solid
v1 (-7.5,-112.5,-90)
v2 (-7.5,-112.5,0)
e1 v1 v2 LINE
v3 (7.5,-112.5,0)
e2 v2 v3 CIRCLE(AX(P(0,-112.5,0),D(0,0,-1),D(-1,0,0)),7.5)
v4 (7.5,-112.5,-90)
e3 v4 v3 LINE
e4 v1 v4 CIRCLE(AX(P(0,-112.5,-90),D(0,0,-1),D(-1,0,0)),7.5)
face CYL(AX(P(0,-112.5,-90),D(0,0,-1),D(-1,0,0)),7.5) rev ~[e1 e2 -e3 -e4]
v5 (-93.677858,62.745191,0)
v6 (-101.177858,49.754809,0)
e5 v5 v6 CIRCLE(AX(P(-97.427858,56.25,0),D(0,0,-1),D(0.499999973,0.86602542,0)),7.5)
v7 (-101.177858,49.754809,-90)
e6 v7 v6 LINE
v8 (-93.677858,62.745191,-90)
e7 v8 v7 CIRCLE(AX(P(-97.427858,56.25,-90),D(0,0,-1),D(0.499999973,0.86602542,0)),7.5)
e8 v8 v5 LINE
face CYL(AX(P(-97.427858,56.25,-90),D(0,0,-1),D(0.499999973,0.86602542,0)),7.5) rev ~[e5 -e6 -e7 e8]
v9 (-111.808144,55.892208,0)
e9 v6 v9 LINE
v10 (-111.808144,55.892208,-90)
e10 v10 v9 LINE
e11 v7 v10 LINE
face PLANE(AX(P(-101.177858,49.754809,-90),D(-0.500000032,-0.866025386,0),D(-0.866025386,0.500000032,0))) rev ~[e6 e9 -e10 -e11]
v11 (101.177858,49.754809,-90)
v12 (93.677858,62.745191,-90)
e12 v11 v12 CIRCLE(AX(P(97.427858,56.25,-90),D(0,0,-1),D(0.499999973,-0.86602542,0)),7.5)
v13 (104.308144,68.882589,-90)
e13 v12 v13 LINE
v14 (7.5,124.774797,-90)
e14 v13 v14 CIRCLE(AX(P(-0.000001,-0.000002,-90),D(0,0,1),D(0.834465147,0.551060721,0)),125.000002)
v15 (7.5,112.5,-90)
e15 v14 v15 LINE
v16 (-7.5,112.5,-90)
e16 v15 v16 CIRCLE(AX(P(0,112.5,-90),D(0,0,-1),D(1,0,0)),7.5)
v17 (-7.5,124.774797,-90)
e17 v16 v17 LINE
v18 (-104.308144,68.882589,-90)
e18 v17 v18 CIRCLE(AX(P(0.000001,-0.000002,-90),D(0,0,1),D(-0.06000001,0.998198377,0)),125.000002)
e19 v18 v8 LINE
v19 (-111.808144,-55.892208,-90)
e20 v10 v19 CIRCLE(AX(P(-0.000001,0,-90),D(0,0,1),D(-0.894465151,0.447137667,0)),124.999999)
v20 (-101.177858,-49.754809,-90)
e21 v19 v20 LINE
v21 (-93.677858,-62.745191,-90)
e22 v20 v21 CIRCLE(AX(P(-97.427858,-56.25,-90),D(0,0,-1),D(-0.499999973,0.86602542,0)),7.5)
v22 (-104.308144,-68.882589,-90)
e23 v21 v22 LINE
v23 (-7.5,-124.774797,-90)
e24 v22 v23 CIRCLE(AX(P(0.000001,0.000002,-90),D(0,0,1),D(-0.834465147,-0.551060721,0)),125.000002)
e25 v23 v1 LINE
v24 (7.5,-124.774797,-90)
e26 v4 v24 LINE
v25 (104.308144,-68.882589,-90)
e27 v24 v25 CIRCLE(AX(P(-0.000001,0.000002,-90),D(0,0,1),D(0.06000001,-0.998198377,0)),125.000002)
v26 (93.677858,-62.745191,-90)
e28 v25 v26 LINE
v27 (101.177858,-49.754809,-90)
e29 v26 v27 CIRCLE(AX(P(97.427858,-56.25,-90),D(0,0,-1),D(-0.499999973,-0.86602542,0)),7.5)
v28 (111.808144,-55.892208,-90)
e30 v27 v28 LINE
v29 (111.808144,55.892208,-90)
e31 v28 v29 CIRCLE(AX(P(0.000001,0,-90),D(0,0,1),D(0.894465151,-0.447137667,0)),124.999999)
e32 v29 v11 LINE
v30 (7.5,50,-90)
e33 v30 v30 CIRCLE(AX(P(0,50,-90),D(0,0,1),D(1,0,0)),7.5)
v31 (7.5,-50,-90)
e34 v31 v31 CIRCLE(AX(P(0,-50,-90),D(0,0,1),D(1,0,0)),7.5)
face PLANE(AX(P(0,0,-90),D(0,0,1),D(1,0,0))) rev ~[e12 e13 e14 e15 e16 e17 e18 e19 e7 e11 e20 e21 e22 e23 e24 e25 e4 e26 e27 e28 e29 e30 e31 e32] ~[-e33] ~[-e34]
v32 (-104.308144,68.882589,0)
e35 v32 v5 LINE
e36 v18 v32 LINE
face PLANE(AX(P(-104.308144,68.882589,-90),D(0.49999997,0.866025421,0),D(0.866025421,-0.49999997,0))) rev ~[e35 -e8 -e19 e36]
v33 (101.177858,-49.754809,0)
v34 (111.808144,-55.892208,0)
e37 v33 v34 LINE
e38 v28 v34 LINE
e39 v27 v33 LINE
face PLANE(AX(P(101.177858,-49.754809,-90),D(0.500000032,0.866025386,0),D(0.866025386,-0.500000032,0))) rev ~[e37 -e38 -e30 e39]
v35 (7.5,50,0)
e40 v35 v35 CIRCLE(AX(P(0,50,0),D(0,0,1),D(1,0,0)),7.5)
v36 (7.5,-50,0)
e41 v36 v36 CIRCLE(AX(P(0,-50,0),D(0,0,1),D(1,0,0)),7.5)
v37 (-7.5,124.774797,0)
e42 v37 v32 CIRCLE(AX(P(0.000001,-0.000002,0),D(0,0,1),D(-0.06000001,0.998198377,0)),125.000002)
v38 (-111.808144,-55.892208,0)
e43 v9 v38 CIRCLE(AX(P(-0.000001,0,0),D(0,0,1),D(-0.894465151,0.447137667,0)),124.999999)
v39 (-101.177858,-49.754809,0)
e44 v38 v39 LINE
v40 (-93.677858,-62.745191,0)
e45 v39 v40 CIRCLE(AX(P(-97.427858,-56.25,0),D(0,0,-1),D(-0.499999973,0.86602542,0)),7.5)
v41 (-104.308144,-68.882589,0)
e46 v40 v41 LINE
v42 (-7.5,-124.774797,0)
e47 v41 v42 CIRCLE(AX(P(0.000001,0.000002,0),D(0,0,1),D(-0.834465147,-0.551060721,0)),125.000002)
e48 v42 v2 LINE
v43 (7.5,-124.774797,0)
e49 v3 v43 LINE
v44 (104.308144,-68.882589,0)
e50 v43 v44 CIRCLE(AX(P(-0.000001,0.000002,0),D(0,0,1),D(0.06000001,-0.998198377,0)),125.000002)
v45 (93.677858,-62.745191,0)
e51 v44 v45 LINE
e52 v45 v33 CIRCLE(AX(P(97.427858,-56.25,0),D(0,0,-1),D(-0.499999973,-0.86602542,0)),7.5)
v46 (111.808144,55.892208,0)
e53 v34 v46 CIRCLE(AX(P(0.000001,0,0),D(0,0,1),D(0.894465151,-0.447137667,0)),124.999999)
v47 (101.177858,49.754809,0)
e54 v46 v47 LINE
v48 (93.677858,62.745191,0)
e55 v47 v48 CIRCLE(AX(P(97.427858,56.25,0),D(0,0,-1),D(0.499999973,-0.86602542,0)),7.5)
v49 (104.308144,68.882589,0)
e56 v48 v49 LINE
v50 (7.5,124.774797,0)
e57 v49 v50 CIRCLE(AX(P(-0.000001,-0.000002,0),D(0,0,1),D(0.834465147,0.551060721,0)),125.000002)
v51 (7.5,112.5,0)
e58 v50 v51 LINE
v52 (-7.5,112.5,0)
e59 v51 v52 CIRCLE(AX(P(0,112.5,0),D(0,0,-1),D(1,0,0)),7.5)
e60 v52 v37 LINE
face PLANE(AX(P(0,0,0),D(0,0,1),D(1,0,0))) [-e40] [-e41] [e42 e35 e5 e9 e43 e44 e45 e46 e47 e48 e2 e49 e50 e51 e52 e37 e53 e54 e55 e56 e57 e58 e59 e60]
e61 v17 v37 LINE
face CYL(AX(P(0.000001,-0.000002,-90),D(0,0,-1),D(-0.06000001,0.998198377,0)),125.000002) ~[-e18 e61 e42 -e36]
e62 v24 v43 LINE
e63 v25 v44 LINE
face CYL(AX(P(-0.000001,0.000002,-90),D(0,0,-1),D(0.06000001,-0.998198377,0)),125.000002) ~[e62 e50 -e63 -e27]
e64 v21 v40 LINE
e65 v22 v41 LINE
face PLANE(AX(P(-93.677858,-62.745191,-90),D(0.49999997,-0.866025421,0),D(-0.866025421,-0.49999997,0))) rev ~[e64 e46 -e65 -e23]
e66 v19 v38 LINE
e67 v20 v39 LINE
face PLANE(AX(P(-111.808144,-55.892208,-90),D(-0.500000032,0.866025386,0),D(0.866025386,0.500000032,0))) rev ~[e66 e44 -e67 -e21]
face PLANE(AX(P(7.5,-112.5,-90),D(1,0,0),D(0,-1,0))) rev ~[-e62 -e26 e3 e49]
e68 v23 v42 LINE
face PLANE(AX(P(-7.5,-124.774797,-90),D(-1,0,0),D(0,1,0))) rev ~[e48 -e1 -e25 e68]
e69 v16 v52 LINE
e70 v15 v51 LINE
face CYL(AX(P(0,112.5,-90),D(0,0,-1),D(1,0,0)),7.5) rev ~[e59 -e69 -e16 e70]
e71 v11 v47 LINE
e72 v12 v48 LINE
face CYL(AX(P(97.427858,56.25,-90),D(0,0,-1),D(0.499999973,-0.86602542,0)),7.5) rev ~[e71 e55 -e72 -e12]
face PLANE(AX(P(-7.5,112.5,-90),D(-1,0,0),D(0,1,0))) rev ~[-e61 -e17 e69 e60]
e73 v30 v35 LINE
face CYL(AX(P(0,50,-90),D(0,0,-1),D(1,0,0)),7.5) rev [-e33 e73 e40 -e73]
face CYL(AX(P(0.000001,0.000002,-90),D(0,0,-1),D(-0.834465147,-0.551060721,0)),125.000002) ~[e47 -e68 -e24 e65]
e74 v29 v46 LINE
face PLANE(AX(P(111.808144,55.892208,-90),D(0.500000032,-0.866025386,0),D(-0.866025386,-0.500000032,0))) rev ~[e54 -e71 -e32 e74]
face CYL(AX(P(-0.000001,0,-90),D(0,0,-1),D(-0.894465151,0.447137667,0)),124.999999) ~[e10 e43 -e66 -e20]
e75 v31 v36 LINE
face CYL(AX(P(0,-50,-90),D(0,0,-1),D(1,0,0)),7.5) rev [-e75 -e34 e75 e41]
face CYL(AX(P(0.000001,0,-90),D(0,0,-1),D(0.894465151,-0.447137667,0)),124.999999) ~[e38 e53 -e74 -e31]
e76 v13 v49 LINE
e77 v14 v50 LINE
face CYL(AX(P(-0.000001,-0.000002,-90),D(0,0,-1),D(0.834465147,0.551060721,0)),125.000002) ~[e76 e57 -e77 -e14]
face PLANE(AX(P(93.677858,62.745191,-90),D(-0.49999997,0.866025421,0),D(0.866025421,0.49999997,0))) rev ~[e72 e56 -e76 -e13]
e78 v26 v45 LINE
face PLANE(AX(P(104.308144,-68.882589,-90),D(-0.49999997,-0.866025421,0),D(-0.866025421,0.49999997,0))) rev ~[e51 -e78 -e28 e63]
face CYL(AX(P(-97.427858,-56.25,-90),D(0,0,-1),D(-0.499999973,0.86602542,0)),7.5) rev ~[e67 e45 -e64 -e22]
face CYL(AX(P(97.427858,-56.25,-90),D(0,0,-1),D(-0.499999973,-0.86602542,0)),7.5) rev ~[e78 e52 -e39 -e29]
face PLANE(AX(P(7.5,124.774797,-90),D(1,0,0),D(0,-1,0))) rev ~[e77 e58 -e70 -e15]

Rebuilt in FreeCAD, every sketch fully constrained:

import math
import FreeCAD as App
import Part
import Sketcher

V = App.Vector
Q = App.Units.Quantity

doc = App.newDocument("Part")
body = doc.addObject("PartDesign::Body", "Body")

# Sketch on XY plane
sketch1 = doc.addObject("Sketcher::SketchObject", "Sketch")
body.addObject(sketch1)
sketch1.AttachmentSupport = (doc.XY_Plane, [""])
sketch1.MapMode = "FlatFace"
sketch1.addGeometry([
    Part.LineSegment(V(-7.5, 112.5, 0), V(-7.5, 124.774797, 0)),  # 0
    Part.ArcOfCircle(Part.Circle(V(0.000001, -0.000002, 0), V(0, 0, 1), 125.000002), math.radians(93.439813), math.radians(146.560187)),  # 1
    Part.LineSegment(V(-104.308144, 68.882589, 0), V(-93.677858, 62.745191, 0)),  # 2
    Part.ArcOfCircle(Part.Circle(V(-97.427858, 56.25, 0), V(0, 0, 1), 7.5), math.radians(-119.999998), math.radians(60.000002)),  # 3
    Part.LineSegment(V(-101.177858, 49.754809, 0), V(-111.808144, 55.892208, 0)),  # 4
    Part.ArcOfCircle(Part.Circle(V(-0.000001, 0, 0), V(0, 0, 1), 124.999999), math.radians(153.439813), math.radians(206.560187)),  # 5
    Part.LineSegment(V(-111.808144, -55.892208, 0), V(-101.177858, -49.754809, 0)),  # 6
    Part.ArcOfCircle(Part.Circle(V(-97.427858, -56.25, 0), V(0, 0, 1), 7.5), math.radians(-60.000002), math.radians(119.999998)),  # 7
    Part.LineSegment(V(-93.677858, -62.745191, 0), V(-104.308144, -68.882589, 0)),  # 8
    Part.ArcOfCircle(Part.Circle(V(0.000001, 0.000002, 0), V(0, 0, 1), 125.000002), math.radians(-146.560187), math.radians(-93.439813)),  # 9
    Part.LineSegment(V(-7.5, -124.774797, 0), V(-7.5, -112.5, 0)),  # 10
    Part.ArcOfCircle(Part.Circle(V(0, -112.5, 0), V(0, 0, 1), 7.5), math.radians(0), math.radians(180)),  # 11
    Part.LineSegment(V(7.5, -112.5, 0), V(7.5, -124.774797, 0)),  # 12
    Part.ArcOfCircle(Part.Circle(V(-0.000001, 0.000002, 0), V(0, 0, 1), 125.000002), math.radians(-86.560187), math.radians(-33.439813)),  # 13
    Part.LineSegment(V(104.308144, -68.882589, 0), V(93.677858, -62.745191, 0)),  # 14
    Part.ArcOfCircle(Part.Circle(V(97.427858, -56.25, 0), V(0, 0, 1), 7.5), math.radians(60.000002), math.radians(240.000002)),  # 15
    Part.LineSegment(V(101.177858, -49.754809, 0), V(111.808144, -55.892208, 0)),  # 16
    Part.ArcOfCircle(Part.Circle(V(0.000001, 0, 0), V(0, 0, 1), 124.999999), math.radians(-26.560187), math.radians(26.560187)),  # 17
    Part.LineSegment(V(111.808144, 55.892208, 0), V(101.177858, 49.754809, 0)),  # 18
    Part.ArcOfCircle(Part.Circle(V(97.427858, 56.25, 0), V(0, 0, 1), 7.5), math.radians(119.999998), math.radians(299.999998)),  # 19
    Part.LineSegment(V(93.677858, 62.745191, 0), V(104.308144, 68.882589, 0)),  # 20
    Part.ArcOfCircle(Part.Circle(V(-0.000001, -0.000002, 0), V(0, 0, 1), 125.000002), math.radians(33.439813), math.radians(86.560187)),  # 21
    Part.LineSegment(V(7.5, 124.774797, 0), V(7.5, 112.5, 0)),  # 22
    Part.ArcOfCircle(Part.Circle(V(0, 112.5, 0), V(0, 0, 1), 7.5), math.radians(180), math.radians(360)),  # 23
    Part.Circle(V(0, -50, 0), V(0, 0, 1), 7.5),  # 24
    Part.Circle(V(0, 50, 0), V(0, 0, 1), 7.5),  # 25
], False)
sketch1.addConstraint([
    Sketcher.Constraint("Coincident", 0, 2, 1, 1),
    Sketcher.Constraint("Coincident", 1, 2, 2, 1),
    Sketcher.Constraint("Coincident", 2, 2, 3, 2),
    Sketcher.Constraint("Coincident", 3, 1, 4, 1),
    Sketcher.Constraint("Coincident", 4, 2, 5, 1),
    Sketcher.Constraint("Coincident", 5, 2, 6, 1),
    Sketcher.Constraint("Coincident", 6, 2, 7, 2),
    Sketcher.Constraint("Coincident", 7, 1, 8, 1),
    Sketcher.Constraint("Coincident", 8, 2, 9, 1),
    Sketcher.Constraint("Coincident", 9, 2, 10, 1),
    Sketcher.Constraint("Coincident", 10, 2, 11, 2),
    Sketcher.Constraint("Coincident", 11, 1, 12, 1),
    Sketcher.Constraint("Coincident", 12, 2, 13, 1),
    Sketcher.Constraint("Coincident", 13, 2, 14, 1),
    Sketcher.Constraint("Coincident", 14, 2, 15, 2),
    Sketcher.Constraint("Coincident", 15, 1, 16, 1),
    Sketcher.Constraint("Coincident", 16, 2, 17, 1),
    Sketcher.Constraint("Coincident", 17, 2, 18, 1),
    Sketcher.Constraint("Coincident", 18, 2, 19, 2),
    Sketcher.Constraint("Coincident", 19, 1, 20, 1),
    Sketcher.Constraint("Coincident", 20, 2, 21, 1),
    Sketcher.Constraint("Coincident", 21, 2, 22, 1),
    Sketcher.Constraint("Coincident", 22, 2, 23, 2),
    Sketcher.Constraint("Coincident", 23, 1, 0, 1),
    Sketcher.Constraint("Vertical", 0),
    Sketcher.Constraint("Vertical", 10),
    Sketcher.Constraint("Vertical", 12),
    Sketcher.Constraint("Vertical", 22),
    Sketcher.Constraint("Coincident", 1, 3, -1, 1),
    Sketcher.Constraint("Coincident", 5, 3, -1, 1),
    Sketcher.Constraint("Coincident", 9, 3, -1, 1),
    Sketcher.Constraint("Coincident", 13, 3, -1, 1),
    Sketcher.Constraint("Coincident", 17, 3, -1, 1),
    Sketcher.Constraint("Coincident", 21, 3, -1, 1),
    Sketcher.Constraint("PointOnObject", 11, 3, -2),
    Sketcher.Constraint("PointOnObject", 23, 3, -2),
    Sketcher.Constraint("PointOnObject", 24, 3, -2),
    Sketcher.Constraint("PointOnObject", 25, 3, -2),
    Sketcher.Constraint("Diameter", 24, Q("15 mm")),
    Sketcher.Constraint("Diameter", 25, Q("15 mm")),
    Sketcher.Constraint("Radius", 5, Q("124.999999 mm")),
    Sketcher.Constraint("Radius", 17, Q("124.999999 mm")),
    Sketcher.Constraint("Radius", 3, Q("7.5 mm")),
    Sketcher.Constraint("Radius", 7, Q("7.5 mm")),
    Sketcher.Constraint("Radius", 11, Q("7.5 mm")),
    Sketcher.Constraint("Radius", 15, Q("7.5 mm")),
    Sketcher.Constraint("Radius", 19, Q("7.5 mm")),
    Sketcher.Constraint("Radius", 23, Q("7.5 mm")),
    Sketcher.Constraint("DistanceY", 24, 3, -1, 1, Q("50 mm")),
    Sketcher.Constraint("DistanceY", -1, 1, 25, 3, Q("50 mm")),
    Sketcher.Constraint("DistanceY", 11, 3, -1, 1, Q("112.5 mm")),
    Sketcher.Constraint("DistanceY", -1, 1, 23, 3, Q("112.5 mm")),
    Sketcher.Constraint("DistanceY", 10, 2, -1, 1, Q("112.5 mm")),
    Sketcher.Constraint("DistanceY", 11, 1, -1, 1, Q("112.5 mm")),
    Sketcher.Constraint("DistanceY", -1, 1, 22, 2, Q("112.5 mm")),
    Sketcher.Constraint("DistanceY", -1, 1, 23, 1, Q("112.5 mm")),
    Sketcher.Constraint("DistanceY", 7, 3, 3, 3, Q("112.5 mm")),
    Sketcher.Constraint("DistanceY", 15, 3, 19, 3, Q("112.5 mm")),
    Sketcher.Constraint("DistanceX", 3, 1, 2, 2, Q("7.5 mm")),
    Sketcher.Constraint("DistanceX", 4, 2, 1, 2, Q("7.5 mm")),
    Sketcher.Constraint("DistanceX", 6, 2, 7, 1, Q("7.5 mm")),
    Sketcher.Constraint("DistanceX", 5, 2, 8, 2, Q("7.5 mm")),
    Sketcher.Constraint("DistanceX", 14, 2, 15, 1, Q("7.5 mm")),
    Sketcher.Constraint("DistanceX", 13, 2, 16, 2, Q("7.5 mm")),
    Sketcher.Constraint("DistanceX", 19, 1, 18, 2, Q("7.5 mm")),
    Sketcher.Constraint("DistanceX", 20, 2, 17, 2, Q("7.5 mm")),
    Sketcher.Constraint("DistanceY", -1, 1, 3, 3, Q("56.25 mm")),
    Sketcher.Constraint("DistanceY", 15, 3, -1, 1, Q("56.25 mm")),
    Sketcher.Constraint("DistanceX", 3, 3, 2, 2, Q("3.75 mm")),
    Sketcher.Constraint("DistanceX", 3, 1, 7, 3, Q("3.75 mm")),
    Sketcher.Constraint("DistanceX", 6, 2, 7, 3, Q("3.75 mm")),
    Sketcher.Constraint("DistanceX", 14, 2, 15, 3, Q("3.75 mm")),
    Sketcher.Constraint("DistanceX", 19, 3, 15, 1, Q("3.75 mm")),
    Sketcher.Constraint("DistanceX", 19, 3, 18, 2, Q("3.75 mm")),
    Sketcher.Constraint("Radius", 1, Q("125.000002 mm")),
    Sketcher.Constraint("Radius", 9, Q("125.000002 mm")),
    Sketcher.Constraint("Radius", 13, Q("125.000002 mm")),
    Sketcher.Constraint("Radius", 21, Q("125.000002 mm")),
    Sketcher.Constraint("DistanceY", 3, 1, 4, 2, Q("6.137399 mm")),
    Sketcher.Constraint("DistanceY", 5, 2, 6, 2, Q("6.137399 mm")),
    Sketcher.Constraint("DistanceY", 16, 2, 15, 1, Q("6.137399 mm")),
    Sketcher.Constraint("DistanceY", 18, 2, 17, 2, Q("6.137399 mm")),
    Sketcher.Constraint("DistanceX", 3, 3, -1, 1, Q("97.427858 mm")),
    Sketcher.Constraint("DistanceX", -1, 1, 15, 3, Q("97.427858 mm")),
])
pad1 = doc.addObject("PartDesign::Pad", "Pad")
body.addObject(pad1)
pad1.Profile = sketch1
pad1.Length = 90
body2 = doc.addObject("PartDesign::Body", "Body001")
doc.recompute()

body.Placement = App.Placement(V(0, 0, -90), App.Rotation(V(0, 0, 1), 0))
boolean = doc.addObject("PartDesign::Boolean", "Boolean")
body2.addObject(boolean)
boolean.Type = "Fuse"
boolean.addObjects([body])

doc.recompute()
